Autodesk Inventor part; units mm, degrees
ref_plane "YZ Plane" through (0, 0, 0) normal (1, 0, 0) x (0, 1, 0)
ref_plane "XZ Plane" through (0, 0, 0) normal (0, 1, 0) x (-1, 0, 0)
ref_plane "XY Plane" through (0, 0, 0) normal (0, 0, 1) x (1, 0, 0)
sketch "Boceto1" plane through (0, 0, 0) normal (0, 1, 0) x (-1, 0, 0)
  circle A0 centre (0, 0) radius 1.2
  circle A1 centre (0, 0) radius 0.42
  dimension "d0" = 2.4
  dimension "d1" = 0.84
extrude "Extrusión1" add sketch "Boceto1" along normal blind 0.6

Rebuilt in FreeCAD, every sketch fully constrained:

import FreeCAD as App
import Part
import Sketcher
Q = App.Units.Quantity

doc = App.newDocument("Part")
body = doc.addObject("PartDesign::Body", "Body")

sketch1 = doc.addObject("Sketcher::SketchObject", "Sketch")
body.addObject(sketch1)
sketch1.AttachmentSupport = (doc.XZ_Plane, [""])
sketch1.MapMode = "FlatFace"
sketch1.addGeometry([
    Part.Circle(App.Vector(0, 0, 0), App.Vector(0, 0, 1), 1.2),
    Part.Circle(App.Vector(0, 0, 0), App.Vector(0, 0, 1), 0.42),
], False)
sketch1.addConstraint([
    Sketcher.Constraint("Coincident", 0, 3, -1, 1),
    Sketcher.Constraint("Coincident", 1, 3, -1, 1),
    Sketcher.Constraint("Diameter", 0, Q("2.4 mm")),
    Sketcher.Constraint("Diameter", 1, Q("0.84 mm")),
])
pad1 = doc.addObject("PartDesign::Pad", "Pad")
body.addObject(pad1)
pad1.Profile = sketch1
pad1.Length = 0.6
pad1.Reversed = True

doc.recompute()
